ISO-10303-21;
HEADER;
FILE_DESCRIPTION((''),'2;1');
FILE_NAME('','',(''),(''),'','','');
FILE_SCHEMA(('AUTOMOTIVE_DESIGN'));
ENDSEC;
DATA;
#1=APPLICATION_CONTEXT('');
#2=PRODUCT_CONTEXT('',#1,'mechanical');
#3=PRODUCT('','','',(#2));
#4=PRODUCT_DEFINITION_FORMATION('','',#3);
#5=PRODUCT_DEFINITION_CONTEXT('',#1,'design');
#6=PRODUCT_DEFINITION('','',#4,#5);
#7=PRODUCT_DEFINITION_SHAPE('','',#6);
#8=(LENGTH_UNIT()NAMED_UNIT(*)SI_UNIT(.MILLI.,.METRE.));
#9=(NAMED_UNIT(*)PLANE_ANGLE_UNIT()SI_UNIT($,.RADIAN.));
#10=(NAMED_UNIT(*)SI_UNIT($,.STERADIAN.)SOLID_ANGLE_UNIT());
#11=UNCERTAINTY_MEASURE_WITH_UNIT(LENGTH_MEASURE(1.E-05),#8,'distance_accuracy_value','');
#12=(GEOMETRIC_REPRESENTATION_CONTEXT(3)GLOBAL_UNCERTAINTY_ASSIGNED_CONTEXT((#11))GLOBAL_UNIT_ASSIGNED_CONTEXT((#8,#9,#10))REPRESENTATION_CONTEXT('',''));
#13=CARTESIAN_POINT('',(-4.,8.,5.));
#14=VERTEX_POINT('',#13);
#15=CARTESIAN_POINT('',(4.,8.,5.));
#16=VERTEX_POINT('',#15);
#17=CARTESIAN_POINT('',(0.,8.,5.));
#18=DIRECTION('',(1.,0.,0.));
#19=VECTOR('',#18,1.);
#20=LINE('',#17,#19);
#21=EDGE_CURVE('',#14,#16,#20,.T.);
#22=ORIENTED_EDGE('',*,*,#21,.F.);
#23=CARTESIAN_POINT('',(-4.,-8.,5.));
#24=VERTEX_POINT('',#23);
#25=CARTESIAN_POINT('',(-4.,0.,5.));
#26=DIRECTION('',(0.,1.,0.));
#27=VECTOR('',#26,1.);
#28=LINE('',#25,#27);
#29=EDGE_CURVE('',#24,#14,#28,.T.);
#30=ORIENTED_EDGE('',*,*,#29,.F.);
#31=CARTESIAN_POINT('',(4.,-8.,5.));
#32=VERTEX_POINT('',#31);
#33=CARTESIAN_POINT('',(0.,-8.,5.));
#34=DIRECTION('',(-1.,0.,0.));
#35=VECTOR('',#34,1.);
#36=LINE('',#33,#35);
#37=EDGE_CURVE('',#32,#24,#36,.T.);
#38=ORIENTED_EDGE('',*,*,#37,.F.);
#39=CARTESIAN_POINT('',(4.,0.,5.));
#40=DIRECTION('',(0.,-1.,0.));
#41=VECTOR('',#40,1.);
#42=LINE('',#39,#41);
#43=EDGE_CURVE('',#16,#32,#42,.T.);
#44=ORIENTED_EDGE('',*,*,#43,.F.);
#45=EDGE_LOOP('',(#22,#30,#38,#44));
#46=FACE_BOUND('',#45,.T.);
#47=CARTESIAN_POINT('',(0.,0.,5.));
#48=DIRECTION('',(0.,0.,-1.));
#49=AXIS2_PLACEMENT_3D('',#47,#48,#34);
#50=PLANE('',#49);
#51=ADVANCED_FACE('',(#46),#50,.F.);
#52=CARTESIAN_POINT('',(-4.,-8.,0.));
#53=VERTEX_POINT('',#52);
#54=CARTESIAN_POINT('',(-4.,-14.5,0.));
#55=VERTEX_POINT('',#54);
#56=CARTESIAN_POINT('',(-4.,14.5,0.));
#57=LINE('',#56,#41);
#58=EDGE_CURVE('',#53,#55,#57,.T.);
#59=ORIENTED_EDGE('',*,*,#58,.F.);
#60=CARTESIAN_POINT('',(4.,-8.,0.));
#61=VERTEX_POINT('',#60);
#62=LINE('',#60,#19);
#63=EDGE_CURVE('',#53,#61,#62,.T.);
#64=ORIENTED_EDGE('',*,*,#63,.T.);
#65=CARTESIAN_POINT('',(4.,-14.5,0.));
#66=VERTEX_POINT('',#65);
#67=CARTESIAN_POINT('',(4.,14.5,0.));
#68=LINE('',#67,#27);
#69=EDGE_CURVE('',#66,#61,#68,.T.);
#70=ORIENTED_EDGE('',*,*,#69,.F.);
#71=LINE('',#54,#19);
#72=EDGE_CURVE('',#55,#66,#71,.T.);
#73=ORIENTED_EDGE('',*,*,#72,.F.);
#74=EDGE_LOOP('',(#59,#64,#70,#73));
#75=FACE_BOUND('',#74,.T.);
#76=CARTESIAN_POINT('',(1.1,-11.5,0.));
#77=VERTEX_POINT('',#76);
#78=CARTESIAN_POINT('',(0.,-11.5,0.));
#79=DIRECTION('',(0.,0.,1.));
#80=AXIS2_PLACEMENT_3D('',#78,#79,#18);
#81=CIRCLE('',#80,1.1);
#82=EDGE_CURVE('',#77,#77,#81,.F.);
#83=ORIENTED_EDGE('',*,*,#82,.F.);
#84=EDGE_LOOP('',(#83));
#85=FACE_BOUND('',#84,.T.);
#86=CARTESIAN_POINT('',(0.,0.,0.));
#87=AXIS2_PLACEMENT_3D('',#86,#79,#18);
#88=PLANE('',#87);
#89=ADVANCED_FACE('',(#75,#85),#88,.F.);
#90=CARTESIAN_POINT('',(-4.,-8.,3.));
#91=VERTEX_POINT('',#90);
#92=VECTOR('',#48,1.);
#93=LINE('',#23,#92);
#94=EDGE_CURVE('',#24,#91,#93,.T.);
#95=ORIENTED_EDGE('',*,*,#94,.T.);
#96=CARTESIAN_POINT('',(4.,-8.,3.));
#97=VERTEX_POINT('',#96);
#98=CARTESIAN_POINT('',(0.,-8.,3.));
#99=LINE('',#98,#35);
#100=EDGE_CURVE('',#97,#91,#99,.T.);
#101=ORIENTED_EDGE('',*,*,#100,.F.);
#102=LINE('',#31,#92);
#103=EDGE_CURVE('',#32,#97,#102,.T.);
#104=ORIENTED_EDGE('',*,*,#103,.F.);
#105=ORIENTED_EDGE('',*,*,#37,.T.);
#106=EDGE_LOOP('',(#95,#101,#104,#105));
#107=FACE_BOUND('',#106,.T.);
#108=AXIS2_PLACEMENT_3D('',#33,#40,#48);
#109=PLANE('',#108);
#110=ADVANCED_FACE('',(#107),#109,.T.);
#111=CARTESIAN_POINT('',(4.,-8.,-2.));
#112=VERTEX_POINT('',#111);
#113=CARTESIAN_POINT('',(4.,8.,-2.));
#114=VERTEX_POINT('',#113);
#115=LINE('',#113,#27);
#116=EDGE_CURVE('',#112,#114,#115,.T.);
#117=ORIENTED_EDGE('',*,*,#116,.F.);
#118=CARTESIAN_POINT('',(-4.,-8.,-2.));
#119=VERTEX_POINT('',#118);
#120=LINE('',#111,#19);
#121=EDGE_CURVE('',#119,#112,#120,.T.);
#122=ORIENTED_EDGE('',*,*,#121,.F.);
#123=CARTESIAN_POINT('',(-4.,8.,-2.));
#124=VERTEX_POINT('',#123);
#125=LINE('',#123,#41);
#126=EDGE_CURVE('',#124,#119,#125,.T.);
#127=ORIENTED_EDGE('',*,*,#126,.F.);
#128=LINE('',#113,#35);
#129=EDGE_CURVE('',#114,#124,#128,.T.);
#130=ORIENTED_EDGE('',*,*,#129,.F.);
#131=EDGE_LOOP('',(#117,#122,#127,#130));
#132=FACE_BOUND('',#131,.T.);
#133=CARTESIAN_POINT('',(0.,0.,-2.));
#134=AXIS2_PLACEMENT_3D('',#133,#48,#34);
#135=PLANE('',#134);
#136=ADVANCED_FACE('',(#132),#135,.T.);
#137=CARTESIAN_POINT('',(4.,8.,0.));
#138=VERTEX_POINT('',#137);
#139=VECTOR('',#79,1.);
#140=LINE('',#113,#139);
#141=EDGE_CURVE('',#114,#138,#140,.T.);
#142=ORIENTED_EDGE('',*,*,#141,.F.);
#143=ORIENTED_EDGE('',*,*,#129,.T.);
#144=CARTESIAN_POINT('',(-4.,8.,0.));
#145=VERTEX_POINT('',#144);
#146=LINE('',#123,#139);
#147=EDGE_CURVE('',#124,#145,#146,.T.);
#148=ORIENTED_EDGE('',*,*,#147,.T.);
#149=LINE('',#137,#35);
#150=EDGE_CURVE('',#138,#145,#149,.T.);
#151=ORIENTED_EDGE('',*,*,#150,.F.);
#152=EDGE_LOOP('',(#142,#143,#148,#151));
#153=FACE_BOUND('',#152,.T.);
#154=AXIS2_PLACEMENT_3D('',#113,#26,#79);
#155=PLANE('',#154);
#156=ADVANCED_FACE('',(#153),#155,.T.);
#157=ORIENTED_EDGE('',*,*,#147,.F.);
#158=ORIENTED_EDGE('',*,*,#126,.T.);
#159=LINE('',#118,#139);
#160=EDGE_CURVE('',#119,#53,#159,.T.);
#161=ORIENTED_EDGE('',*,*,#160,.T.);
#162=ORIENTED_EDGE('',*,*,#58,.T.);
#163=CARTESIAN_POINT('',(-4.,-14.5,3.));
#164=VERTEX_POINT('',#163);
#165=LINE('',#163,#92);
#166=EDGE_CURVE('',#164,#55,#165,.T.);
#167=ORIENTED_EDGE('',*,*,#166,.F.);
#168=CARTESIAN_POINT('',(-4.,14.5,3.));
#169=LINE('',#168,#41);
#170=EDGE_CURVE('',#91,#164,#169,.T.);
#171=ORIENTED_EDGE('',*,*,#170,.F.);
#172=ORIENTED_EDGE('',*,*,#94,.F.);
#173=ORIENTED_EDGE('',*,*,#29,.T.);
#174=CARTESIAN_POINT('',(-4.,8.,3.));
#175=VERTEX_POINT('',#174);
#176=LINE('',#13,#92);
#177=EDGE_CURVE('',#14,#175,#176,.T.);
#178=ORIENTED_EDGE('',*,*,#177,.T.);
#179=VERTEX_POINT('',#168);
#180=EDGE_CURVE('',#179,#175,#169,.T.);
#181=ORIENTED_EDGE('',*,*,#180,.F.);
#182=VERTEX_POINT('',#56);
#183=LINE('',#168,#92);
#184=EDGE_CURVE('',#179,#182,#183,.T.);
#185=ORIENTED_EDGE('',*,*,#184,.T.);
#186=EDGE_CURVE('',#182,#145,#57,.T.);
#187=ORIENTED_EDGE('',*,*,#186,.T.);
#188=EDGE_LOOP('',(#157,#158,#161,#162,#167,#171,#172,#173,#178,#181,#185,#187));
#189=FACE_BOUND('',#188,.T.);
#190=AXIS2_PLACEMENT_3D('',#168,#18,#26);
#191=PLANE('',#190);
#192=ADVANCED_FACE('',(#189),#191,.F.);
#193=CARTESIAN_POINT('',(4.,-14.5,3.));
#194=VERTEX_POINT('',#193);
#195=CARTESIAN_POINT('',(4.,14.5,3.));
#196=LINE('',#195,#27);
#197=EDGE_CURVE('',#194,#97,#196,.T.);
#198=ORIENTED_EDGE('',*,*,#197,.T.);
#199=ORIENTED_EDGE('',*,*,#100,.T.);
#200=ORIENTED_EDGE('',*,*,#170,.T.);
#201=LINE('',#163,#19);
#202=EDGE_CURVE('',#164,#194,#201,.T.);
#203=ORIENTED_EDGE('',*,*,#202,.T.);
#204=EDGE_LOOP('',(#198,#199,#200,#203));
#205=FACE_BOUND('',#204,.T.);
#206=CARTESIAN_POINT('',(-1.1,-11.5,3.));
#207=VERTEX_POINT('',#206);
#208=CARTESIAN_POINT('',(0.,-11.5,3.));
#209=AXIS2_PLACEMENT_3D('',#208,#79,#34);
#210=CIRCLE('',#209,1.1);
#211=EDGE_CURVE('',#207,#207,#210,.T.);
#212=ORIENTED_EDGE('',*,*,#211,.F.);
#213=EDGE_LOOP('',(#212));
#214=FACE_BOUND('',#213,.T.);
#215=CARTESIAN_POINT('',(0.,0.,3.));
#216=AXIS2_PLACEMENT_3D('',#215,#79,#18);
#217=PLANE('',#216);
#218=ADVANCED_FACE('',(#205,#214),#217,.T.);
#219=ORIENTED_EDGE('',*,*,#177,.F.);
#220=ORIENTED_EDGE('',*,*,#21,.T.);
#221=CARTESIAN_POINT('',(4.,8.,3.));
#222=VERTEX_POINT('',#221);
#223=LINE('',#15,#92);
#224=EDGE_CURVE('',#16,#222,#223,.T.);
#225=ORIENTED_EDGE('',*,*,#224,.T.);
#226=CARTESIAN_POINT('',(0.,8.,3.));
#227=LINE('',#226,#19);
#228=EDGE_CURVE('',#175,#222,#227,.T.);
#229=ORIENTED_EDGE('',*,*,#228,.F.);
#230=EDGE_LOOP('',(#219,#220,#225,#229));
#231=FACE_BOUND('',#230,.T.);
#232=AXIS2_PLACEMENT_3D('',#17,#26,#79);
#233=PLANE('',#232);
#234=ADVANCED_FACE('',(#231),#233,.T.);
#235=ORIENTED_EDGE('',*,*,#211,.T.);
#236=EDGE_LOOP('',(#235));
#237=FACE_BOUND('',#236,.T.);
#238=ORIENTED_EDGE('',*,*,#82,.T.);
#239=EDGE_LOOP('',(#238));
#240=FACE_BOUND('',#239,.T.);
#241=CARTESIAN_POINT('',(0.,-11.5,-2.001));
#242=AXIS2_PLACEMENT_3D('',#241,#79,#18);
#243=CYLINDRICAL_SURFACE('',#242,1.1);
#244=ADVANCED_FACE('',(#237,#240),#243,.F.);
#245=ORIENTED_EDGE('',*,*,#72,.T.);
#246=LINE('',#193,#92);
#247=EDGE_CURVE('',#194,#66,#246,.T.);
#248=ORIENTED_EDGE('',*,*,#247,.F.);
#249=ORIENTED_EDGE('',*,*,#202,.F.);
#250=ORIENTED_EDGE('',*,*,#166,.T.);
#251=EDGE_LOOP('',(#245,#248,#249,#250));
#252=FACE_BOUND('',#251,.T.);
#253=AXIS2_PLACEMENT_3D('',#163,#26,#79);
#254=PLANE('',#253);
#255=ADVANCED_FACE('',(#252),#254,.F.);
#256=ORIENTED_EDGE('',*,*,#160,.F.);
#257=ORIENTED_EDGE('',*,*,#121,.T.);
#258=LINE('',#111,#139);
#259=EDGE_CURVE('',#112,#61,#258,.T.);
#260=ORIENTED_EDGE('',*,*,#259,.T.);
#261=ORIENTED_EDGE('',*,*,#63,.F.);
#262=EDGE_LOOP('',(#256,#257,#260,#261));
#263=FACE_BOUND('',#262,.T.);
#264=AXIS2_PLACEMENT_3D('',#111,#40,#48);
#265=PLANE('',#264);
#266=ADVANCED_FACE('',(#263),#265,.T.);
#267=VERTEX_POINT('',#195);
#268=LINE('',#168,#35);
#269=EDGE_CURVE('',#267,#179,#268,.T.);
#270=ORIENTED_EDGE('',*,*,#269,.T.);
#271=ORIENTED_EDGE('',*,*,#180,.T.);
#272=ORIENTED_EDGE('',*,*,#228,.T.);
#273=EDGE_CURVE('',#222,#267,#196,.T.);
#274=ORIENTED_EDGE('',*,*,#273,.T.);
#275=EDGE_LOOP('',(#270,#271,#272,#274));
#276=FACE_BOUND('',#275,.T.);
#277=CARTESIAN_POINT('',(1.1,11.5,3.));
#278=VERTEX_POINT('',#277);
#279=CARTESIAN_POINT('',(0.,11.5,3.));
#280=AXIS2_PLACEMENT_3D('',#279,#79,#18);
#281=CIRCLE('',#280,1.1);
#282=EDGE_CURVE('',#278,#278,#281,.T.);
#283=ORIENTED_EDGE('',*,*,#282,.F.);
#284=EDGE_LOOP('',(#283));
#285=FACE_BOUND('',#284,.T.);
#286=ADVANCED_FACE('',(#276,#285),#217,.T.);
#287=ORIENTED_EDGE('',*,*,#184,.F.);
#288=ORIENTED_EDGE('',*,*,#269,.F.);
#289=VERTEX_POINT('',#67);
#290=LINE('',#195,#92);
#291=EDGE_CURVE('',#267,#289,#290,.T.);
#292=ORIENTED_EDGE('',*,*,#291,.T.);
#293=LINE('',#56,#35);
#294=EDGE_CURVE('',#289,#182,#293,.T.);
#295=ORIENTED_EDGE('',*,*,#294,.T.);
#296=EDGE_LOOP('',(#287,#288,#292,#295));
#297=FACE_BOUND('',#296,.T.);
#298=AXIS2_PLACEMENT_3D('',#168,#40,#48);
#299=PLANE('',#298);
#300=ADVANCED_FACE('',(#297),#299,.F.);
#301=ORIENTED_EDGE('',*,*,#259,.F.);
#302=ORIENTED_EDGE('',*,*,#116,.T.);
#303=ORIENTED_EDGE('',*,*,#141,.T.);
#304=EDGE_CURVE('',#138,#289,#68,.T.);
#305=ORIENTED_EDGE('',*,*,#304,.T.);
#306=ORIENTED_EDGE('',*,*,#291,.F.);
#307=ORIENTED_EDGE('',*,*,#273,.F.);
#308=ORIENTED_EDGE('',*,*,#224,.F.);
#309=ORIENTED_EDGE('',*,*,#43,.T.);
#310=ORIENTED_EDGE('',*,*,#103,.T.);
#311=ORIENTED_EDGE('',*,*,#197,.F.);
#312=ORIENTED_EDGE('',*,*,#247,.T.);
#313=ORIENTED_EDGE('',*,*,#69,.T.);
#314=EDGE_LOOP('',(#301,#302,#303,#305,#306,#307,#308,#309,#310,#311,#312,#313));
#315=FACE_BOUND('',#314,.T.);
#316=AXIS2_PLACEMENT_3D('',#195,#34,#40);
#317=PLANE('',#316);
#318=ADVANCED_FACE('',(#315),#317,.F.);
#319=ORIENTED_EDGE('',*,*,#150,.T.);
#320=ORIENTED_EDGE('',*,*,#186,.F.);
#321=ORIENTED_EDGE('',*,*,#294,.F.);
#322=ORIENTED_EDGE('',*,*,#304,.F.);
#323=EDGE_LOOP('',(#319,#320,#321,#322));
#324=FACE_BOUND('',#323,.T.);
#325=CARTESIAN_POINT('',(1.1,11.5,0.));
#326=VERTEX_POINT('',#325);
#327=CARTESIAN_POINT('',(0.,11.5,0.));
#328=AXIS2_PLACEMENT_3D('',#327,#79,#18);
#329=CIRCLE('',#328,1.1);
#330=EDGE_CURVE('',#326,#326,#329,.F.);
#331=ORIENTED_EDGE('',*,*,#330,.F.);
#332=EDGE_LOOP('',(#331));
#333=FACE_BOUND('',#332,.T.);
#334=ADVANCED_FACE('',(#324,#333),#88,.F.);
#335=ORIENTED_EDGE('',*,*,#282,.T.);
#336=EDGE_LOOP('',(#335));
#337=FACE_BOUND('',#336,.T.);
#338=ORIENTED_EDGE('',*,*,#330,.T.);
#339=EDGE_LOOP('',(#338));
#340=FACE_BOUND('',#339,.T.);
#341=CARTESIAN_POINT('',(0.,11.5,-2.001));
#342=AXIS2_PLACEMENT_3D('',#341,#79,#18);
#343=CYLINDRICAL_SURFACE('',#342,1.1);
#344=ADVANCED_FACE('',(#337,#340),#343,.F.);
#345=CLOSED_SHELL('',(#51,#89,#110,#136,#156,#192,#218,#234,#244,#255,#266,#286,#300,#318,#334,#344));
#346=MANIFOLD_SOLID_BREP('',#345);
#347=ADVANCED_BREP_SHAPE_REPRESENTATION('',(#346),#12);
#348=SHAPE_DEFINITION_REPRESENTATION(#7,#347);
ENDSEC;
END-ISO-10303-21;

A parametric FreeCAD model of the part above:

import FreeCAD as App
import Part
import Sketcher


def add_polygon(sketch, points):
    """Adds a closed chain of lines whose ends are joined by coincident constraints."""
    first, n = sketch.GeometryCount, len(points)
    for a, b in zip(points, points[1:] + points[:1]):
        sketch.addGeometry(Part.LineSegment(App.Vector(*a, 0), App.Vector(*b, 0)), False)
    for i in range(n):
        sketch.addConstraint(Sketcher.Constraint("Coincident", first + i, 2, first + (i + 1) % n, 1))

doc = App.newDocument("Part")
params = doc.addObject("Spreadsheet::Sheet", "Params")
for row, (alias, value) in enumerate([
    ("sketch1_width", "8 mm"),
    ("sketch1_height", "29 mm"),
    ("pad1_length", "3 mm"),
    ("sketch2_width", "8 mm"),
    ("sketch2_height", "16 mm"),
    ("pad2_length", "2 mm"),
    ("sketch3_width", "8 mm"),
    ("sketch3_height", "16 mm"),
    ("pad3_length", "2 mm"),
    ("sketch4_diameter", "2.2 mm"),
    ("sketch5_diameter", "2.2 mm"),
], start=1):
    params.set(f"A{row}", alias)
    params.set(f"B{row}", "=" + value)
    params.setAlias(f"B{row}", alias)

body = doc.addObject("PartDesign::Body", "Body")

sketch1 = body.newObject("Sketcher::SketchObject", "Sketch")
sketch1.AttachmentSupport = (doc.getObject("XY_Plane"), [""])
sketch1.MapMode = "FlatFace"
add_polygon(sketch1, [(-4, 14), (-4, -14), (4, -14), (4, 14)])
sketch1.addConstraint(Sketcher.Constraint("Vertical", 0))
sketch1.addConstraint(Sketcher.Constraint("Horizontal", 1))
sketch1.addConstraint(Sketcher.Constraint("Vertical", 2))
sketch1.addConstraint(Sketcher.Constraint("Horizontal", 3))
sketch1.addConstraint(Sketcher.Constraint("Symmetric", 0, 2, 2, 2, -1, 1))
sketch1.addConstraint(Sketcher.Constraint("DistanceX", 1, 1, 1, 2, 8.0))
sketch1.addConstraint(Sketcher.Constraint("DistanceY", 0, 2, 0, 1, 29.0))
sketch1.setExpression("Constraints[9]", "Params.sketch1_width")
sketch1.setExpression("Constraints[10]", "Params.sketch1_height")
pad1 = body.newObject("PartDesign::Pad", "Pad")
pad1.Profile = sketch1
pad1.setExpression("Length", "Params.pad1_length")

sketch2 = body.newObject("Sketcher::SketchObject", "Sketch001")
sketch2.AttachmentSupport = (doc.getObject("XY_Plane"), [""])
sketch2.MapMode = "FlatFace"
add_polygon(sketch2, [(-4, 8), (-4, -8), (4, -8), (4, 8)])
sketch2.addConstraint(Sketcher.Constraint("Vertical", 0))
sketch2.addConstraint(Sketcher.Constraint("Horizontal", 1))
sketch2.addConstraint(Sketcher.Constraint("Vertical", 2))
sketch2.addConstraint(Sketcher.Constraint("Horizontal", 3))
sketch2.addConstraint(Sketcher.Constraint("Symmetric", 0, 2, 2, 2, -1, 1))
sketch2.addConstraint(Sketcher.Constraint("DistanceX", 1, 1, 1, 2, 8.0))
sketch2.addConstraint(Sketcher.Constraint("DistanceY", 0, 2, 0, 1, 16.0))
sketch2.setExpression("Constraints[9]", "Params.sketch2_width")
sketch2.setExpression("Constraints[10]", "Params.sketch2_height")
pad2 = body.newObject("PartDesign::Pad", "Pad001")
pad2.Profile = sketch2
pad2.setExpression("Length", "Params.pad2_length")
pad2.Reversed = True

sketch3 = body.newObject("Sketcher::SketchObject", "Sketch002")
sketch3.AttachmentSupport = (doc.getObject("XY_Plane"), [""])
sketch3.MapMode = "FlatFace"
sketch3.AttachmentOffset = App.Placement(App.Vector(0, 0, 3), App.Rotation())
add_polygon(sketch3, [(-4, 8), (-4, -8), (4, -8), (4, 8)])
sketch3.addConstraint(Sketcher.Constraint("Vertical", 0))
sketch3.addConstraint(Sketcher.Constraint("Horizontal", 1))
sketch3.addConstraint(Sketcher.Constraint("Vertical", 2))
sketch3.addConstraint(Sketcher.Constraint("Horizontal", 3))
sketch3.addConstraint(Sketcher.Constraint("Symmetric", 0, 2, 2, 2, -1, 1))
sketch3.addConstraint(Sketcher.Constraint("DistanceX", 1, 1, 1, 2, 8.0))
sketch3.addConstraint(Sketcher.Constraint("DistanceY", 0, 2, 0, 1, 16.0))
sketch3.setExpression("Constraints[9]", "Params.sketch3_width")
sketch3.setExpression("Constraints[10]", "Params.sketch3_height")
pad3 = body.newObject("PartDesign::Pad", "Pad002")
pad3.Profile = sketch3
pad3.setExpression("Length", "Params.pad3_length")

sketch4 = body.newObject("Sketcher::SketchObject", "Sketch003")
sketch4.AttachmentSupport = (doc.getObject("XY_Plane"), [""])
sketch4.MapMode = "FlatFace"
sketch4.AttachmentOffset = App.Placement(App.Vector(0, 0, 3), App.Rotation())
sketch4.addGeometry(Part.Circle(App.Vector(0, 11.5, 0), App.Vector(0, 0, 1), 1.1), False)
sketch4.addConstraint(Sketcher.Constraint("PointOnObject", 0, 3, -2))
sketch4.addConstraint(Sketcher.Constraint("Diameter", 0, 2.2))
sketch4.addConstraint(Sketcher.Constraint("DistanceY", -1, 1, 0, 3, 11.5))
sketch4.setExpression("Constraints[1]", "Params.sketch4_diameter")
pocket1 = body.newObject("PartDesign::Pocket", "Pocket")
pocket1.Profile = sketch4
pocket1.Type = "UpToFirst"

sketch5 = body.newObject("Sketcher::SketchObject", "Sketch004")
sketch5.AttachmentSupport = (doc.getObject("XY_Plane"), [""])
sketch5.MapMode = "FlatFace"
sketch5.AttachmentOffset = App.Placement(App.Vector(0, 0, 3), App.Rotation())
sketch5.addGeometry(Part.Circle(App.Vector(0, -11.5, 0), App.Vector(0, 0, 1), 1.1), False)
sketch5.addConstraint(Sketcher.Constraint("PointOnObject", 0, 3, -2))
sketch5.addConstraint(Sketcher.Constraint("Diameter", 0, 2.2))
sketch5.addConstraint(Sketcher.Constraint("DistanceY", 0, 3, -1, 1, 11.5))
sketch5.setExpression("Constraints[1]", "Params.sketch5_diameter")
pocket2 = body.newObject("PartDesign::Pocket", "Pocket001")
pocket2.Profile = sketch5
pocket2.Type = "UpToFirst"

doc.recompute()
